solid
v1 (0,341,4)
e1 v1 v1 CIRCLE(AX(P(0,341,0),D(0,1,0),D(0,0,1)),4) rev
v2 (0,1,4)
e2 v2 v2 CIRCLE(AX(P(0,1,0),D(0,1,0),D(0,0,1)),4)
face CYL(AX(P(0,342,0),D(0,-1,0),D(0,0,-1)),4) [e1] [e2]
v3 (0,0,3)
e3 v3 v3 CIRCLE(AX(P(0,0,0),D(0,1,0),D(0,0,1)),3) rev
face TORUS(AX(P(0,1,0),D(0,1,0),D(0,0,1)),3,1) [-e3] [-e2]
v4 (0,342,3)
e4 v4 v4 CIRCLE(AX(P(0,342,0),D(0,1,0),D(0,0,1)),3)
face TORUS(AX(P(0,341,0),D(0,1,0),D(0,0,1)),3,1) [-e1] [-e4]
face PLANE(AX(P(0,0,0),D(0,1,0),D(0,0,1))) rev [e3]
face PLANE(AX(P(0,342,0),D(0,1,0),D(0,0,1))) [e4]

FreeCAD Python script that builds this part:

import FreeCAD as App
import Part
import Sketcher
from FreeCAD import Vector


def edges_at(feature, points):
    """Names of the edges that pass closest to the given points."""
    edges = feature.Shape.Edges
    near = lambda p: min(range(len(edges)), key=lambda i: edges[i].distToShape(Part.Vertex(*p))[0])
    return sorted({f"Edge{near(p) + 1}" for p in points})

doc = App.newDocument("Part")
body = doc.addObject("PartDesign::Body", "Body")

# Sketch on XZ plane
sketch1 = doc.addObject("Sketcher::SketchObject", "Sketch")
body.addObject(sketch1)
sketch1.AttachmentSupport = (doc.XZ_Plane, [""])
sketch1.MapMode = "FlatFace"
sketch1.addGeometry(Part.Circle(Vector(0, 0, 0), Vector(0, 0, 1), 4), False)
sketch1.addConstraint([
    Sketcher.Constraint("Coincident", 0, 3, -1, 1),
    Sketcher.Constraint("Diameter", 0, 8.0),
])
pad1 = doc.addObject("PartDesign::Pad", "Pad")
body.addObject(pad1)
pad1.Profile = sketch1
pad1.Length = 342
pad1.Reversed = True
doc.recompute()

fillet = doc.addObject("PartDesign::Fillet", "Fillet")
body.addObject(fillet)
fillet.Base = (pad1, edges_at(pad1, [(-4, 0, 0), (-4, 342, 0)]))
fillet.Radius = 1

doc.recompute()
